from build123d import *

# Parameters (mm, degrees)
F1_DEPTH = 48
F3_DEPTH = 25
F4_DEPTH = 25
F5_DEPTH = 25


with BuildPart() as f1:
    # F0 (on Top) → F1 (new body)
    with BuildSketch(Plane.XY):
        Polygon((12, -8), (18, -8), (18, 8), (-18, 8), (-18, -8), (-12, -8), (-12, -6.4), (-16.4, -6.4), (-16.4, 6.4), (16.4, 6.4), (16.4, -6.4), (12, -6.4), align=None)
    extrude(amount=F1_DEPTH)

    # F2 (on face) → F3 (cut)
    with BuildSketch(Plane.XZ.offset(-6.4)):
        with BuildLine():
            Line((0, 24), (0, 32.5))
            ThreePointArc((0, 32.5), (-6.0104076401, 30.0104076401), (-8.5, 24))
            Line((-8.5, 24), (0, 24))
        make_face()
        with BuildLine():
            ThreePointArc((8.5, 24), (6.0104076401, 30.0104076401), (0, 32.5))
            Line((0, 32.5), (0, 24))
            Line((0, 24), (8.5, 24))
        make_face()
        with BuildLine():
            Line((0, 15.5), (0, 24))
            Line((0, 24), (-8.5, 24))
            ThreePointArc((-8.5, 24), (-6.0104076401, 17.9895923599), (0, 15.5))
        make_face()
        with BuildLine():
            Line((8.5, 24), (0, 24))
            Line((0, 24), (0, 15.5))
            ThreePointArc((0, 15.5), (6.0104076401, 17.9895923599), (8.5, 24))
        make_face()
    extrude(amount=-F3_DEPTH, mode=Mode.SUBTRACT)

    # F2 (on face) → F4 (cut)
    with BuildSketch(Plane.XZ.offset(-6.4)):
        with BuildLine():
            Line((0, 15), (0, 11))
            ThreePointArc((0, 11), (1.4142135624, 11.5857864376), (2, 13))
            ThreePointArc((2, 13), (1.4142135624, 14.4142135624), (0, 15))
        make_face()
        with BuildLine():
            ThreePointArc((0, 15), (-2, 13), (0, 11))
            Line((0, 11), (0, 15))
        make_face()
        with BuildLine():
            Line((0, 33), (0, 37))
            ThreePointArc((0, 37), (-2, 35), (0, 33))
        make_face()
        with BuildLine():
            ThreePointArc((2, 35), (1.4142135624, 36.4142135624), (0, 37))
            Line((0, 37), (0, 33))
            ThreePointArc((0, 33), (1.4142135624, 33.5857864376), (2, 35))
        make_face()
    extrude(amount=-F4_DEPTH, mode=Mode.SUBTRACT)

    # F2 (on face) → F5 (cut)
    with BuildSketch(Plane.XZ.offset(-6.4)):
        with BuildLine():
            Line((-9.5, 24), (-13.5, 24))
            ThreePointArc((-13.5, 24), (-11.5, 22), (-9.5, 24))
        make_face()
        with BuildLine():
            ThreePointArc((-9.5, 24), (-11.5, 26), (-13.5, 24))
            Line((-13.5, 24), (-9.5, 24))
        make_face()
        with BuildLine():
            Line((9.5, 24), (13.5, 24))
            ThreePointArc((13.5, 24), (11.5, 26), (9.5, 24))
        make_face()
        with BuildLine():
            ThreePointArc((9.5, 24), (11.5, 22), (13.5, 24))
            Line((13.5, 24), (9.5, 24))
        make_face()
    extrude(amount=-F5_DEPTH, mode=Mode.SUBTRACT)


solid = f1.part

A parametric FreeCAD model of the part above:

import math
import FreeCAD as App
import Part
import Sketcher

doc = App.newDocument("Part")
params = doc.addObject("Spreadsheet::Sheet", "Params")
for row, (alias, value) in enumerate([
    ("sketch1_width", "6 mm"),
    ("sketch1_width2", "36 mm"),
    ("sketch1_height", "16 mm"),
    ("sketch1_width3", "4.4 mm"),
    ("sketch1_height2", "1.6 mm"),
    ("pad1_length", "48 mm"),
    ("sketch2_radius", "8.5 mm"),
    ("pocket1_length", "25 mm"),
    ("sketch3_radius", "2 mm"),
    ("pocket2_length", "25 mm"),
    ("sketch4_diameter", "4 mm"),
    ("pocket3_length", "25 mm"),
], start=1):
    params.set(f"A{row}", alias)
    params.set(f"B{row}", "=" + value)
    params.setAlias(f"B{row}", alias)

body = doc.addObject("PartDesign::Body", "Body")

# Sketch on XY plane
sketch1 = body.newObject("Sketcher::SketchObject", "Sketch")
sketch1.AttachmentSupport = (doc.getObject("XY_Plane"), [""])
sketch1.MapMode = "FlatFace"
sketch1.addGeometry(Part.LineSegment(App.Vector(12, -8, 0), App.Vector(18, -8, 0)), False)
sketch1.addGeometry(Part.LineSegment(App.Vector(18, -8, 0), App.Vector(18, 8, 0)), False)
sketch1.addGeometry(Part.LineSegment(App.Vector(18, 8, 0), App.Vector(-18, 8, 0)), False)
sketch1.addGeometry(Part.LineSegment(App.Vector(-18, 8, 0), App.Vector(-18, -8, 0)), False)
sketch1.addGeometry(Part.LineSegment(App.Vector(-18, -8, 0), App.Vector(-12, -8, 0)), False)
sketch1.addGeometry(Part.LineSegment(App.Vector(-12, -8, 0), App.Vector(-12, -6.4, 0)), False)
sketch1.addGeometry(Part.LineSegment(App.Vector(-12, -6.4, 0), App.Vector(-16.4, -6.4, 0)), False)
sketch1.addGeometry(Part.LineSegment(App.Vector(-16.4, -6.4, 0), App.Vector(-16.4, 6.4, 0)), False)
sketch1.addGeometry(Part.LineSegment(App.Vector(-16.4, 6.4, 0), App.Vector(16.4, 6.4, 0)), False)
sketch1.addGeometry(Part.LineSegment(App.Vector(16.4, 6.4, 0), App.Vector(16.4, -6.4, 0)), False)
sketch1.addGeometry(Part.LineSegment(App.Vector(16.4, -6.4, 0), App.Vector(12, -6.4, 0)), False)
sketch1.addGeometry(Part.LineSegment(App.Vector(12, -6.4, 0), App.Vector(12, -8, 0)), False)
sketch1.addConstraint(Sketcher.Constraint("Coincident", 0, 2, 1, 1))
sketch1.addConstraint(Sketcher.Constraint("Coincident", 1, 2, 2, 1))
sketch1.addConstraint(Sketcher.Constraint("Coincident", 2, 2, 3, 1))
sketch1.addConstraint(Sketcher.Constraint("Coincident", 3, 2, 4, 1))
sketch1.addConstraint(Sketcher.Constraint("Coincident", 4, 2, 5, 1))
sketch1.addConstraint(Sketcher.Constraint("Coincident", 5, 2, 6, 1))
sketch1.addConstraint(Sketcher.Constraint("Coincident", 6, 2, 7, 1))
sketch1.addConstraint(Sketcher.Constraint("Coincident", 7, 2, 8, 1))
sketch1.addConstraint(Sketcher.Constraint("Coincident", 8, 2, 9, 1))
sketch1.addConstraint(Sketcher.Constraint("Coincident", 9, 2, 10, 1))
sketch1.addConstraint(Sketcher.Constraint("Coincident", 10, 2, 11, 1))
sketch1.addConstraint(Sketcher.Constraint("Coincident", 11, 2, 0, 1))
sketch1.addConstraint(Sketcher.Constraint("Horizontal", 0))
sketch1.addConstraint(Sketcher.Constraint("Vertical", 1))
sketch1.addConstraint(Sketcher.Constraint("Horizontal", 2))
sketch1.addConstraint(Sketcher.Constraint("Vertical", 3))
sketch1.addConstraint(Sketcher.Constraint("Horizontal", 4))
sketch1.addConstraint(Sketcher.Constraint("Vertical", 5))
sketch1.addConstraint(Sketcher.Constraint("Horizontal", 6))
sketch1.addConstraint(Sketcher.Constraint("Vertical", 7))
sketch1.addConstraint(Sketcher.Constraint("Horizontal", 8))
sketch1.addConstraint(Sketcher.Constraint("Vertical", 9))
sketch1.addConstraint(Sketcher.Constraint("Horizontal", 10))
sketch1.addConstraint(Sketcher.Constraint("Vertical", 11))
sketch1.addConstraint(Sketcher.Constraint("Symmetric", 0, 2, 2, 2, -1, 1))
sketch1.addConstraint(Sketcher.Constraint("Symmetric", 6, 2, 8, 2, -1, 1))
sketch1.addConstraint(Sketcher.Constraint("Symmetric", 5, 2, 10, 2, -2))
sketch1.addConstraint(Sketcher.Constraint("Horizontal", 0, 2, 3, 2))
sketch1.addConstraint(Sketcher.Constraint("DistanceX", 0, 1, 0, 2, 6.0))
sketch1.addConstraint(Sketcher.Constraint("DistanceX", 2, 2, 2, 1, 36.0))
sketch1.addConstraint(Sketcher.Constraint("DistanceY", 1, 1, 1, 2, 16.0))
sketch1.addConstraint(Sketcher.Constraint("DistanceX", 6, 2, 6, 1, 4.4))
sketch1.addConstraint(Sketcher.Constraint("DistanceY", 5, 1, 5, 2, 1.6))
sketch1.setExpression("Constraints[28]", "Params.sketch1_width")
sketch1.setExpression("Constraints[29]", "Params.sketch1_width2")
sketch1.setExpression("Constraints[30]", "Params.sketch1_height")
sketch1.setExpression("Constraints[31]", "Params.sketch1_width3")
sketch1.setExpression("Constraints[32]", "Params.sketch1_height2")
pad1 = body.newObject("PartDesign::Pad", "Pad")
pad1.Profile = sketch1
pad1.setExpression("Length", "Params.pad1_length")

# Sketch on XZ plane
sketch2 = body.newObject("Sketcher::SketchObject", "Sketch001")
sketch2.AttachmentSupport = (doc.getObject("XZ_Plane"), [""])
sketch2.MapMode = "FlatFace"
sketch2.AttachmentOffset = App.Placement(App.Vector(0, 0, -6.4), App.Rotation())
sketch2.addGeometry(Part.ArcOfCircle(Part.Circle(App.Vector(0, 24, 0), App.Vector(0, 0, 1), 8), math.radians(90), math.radians(180)), False)
sketch2.addGeometry(Part.ArcOfCircle(Part.Circle(App.Vector(0, 24, 0), App.Vector(0, 0, 1), 8), math.radians(180), math.radians(270)), False)
sketch2.addGeometry(Part.ArcOfCircle(Part.Circle(App.Vector(0, 24, 0), App.Vector(0, 0, 1), 8), math.radians(-90), math.radians(0)), False)
sketch2.addGeometry(Part.ArcOfCircle(Part.Circle(App.Vector(0, 24, 0), App.Vector(0, 0, 1), 8), math.radians(0), math.radians(90)), False)
sketch2.addConstraint(Sketcher.Constraint("Tangent", 0, 2, 1, 1))
sketch2.addConstraint(Sketcher.Constraint("Tangent", 1, 2, 2, 1))
sketch2.addConstraint(Sketcher.Constraint("Tangent", 2, 2, 3, 1))
sketch2.addConstraint(Sketcher.Constraint("Tangent", 3, 2, 0, 1))
sketch2.addConstraint(Sketcher.Constraint("Equal", 0, 1))
sketch2.addConstraint(Sketcher.Constraint("Symmetric", 0, 2, 2, 2, -2))
sketch2.addConstraint(Sketcher.Constraint("PointOnObject", 1, 2, -2))
sketch2.addConstraint(Sketcher.Constraint("PointOnObject", 3, 2, -2))
sketch2.addConstraint(Sketcher.Constraint("Horizontal", 3, 3, 0, 2))
sketch2.addConstraint(Sketcher.Constraint("Radius", 0, 8.5))
sketch2.addConstraint(Sketcher.Constraint("DistanceY", -1, 1, 0, 3, 24.0))
sketch2.setExpression("Constraints[9]", "Params.sketch2_radius")
pocket1 = body.newObject("PartDesign::Pocket", "Pocket")
pocket1.Profile = sketch2
pocket1.setExpression("Length", "Params.pocket1_length")

# Sketch on XZ plane
sketch3 = body.newObject("Sketcher::SketchObject", "Sketch002")
sketch3.AttachmentSupport = (doc.getObject("XZ_Plane"), [""])
sketch3.MapMode = "FlatFace"
sketch3.AttachmentOffset = App.Placement(App.Vector(0, 0, -6.4), App.Rotation())
sketch3.addGeometry(Part.ArcOfCircle(Part.Circle(App.Vector(0, 13, 0), App.Vector(0, 0, 1), 2), math.radians(-90), math.radians(0)), False)
sketch3.addGeometry(Part.ArcOfCircle(Part.Circle(App.Vector(0, 13, 0), App.Vector(0, 0, 1), 2), math.radians(0), math.radians(90)), False)
sketch3.addGeometry(Part.ArcOfCircle(Part.Circle(App.Vector(0, 13, 0), App.Vector(0, 0, 1), 2), math.radians(90), math.radians(270)), False)
sketch3.addGeometry(Part.ArcOfCircle(Part.Circle(App.Vector(0, 35, 0), App.Vector(0, 0, 1), 2), math.radians(90), math.radians(270)), False)
sketch3.addGeometry(Part.ArcOfCircle(Part.Circle(App.Vector(0, 35, 0), App.Vector(0, 0, 1), 2), math.radians(-90), math.radians(0)), False)
sketch3.addGeometry(Part.ArcOfCircle(Part.Circle(App.Vector(0, 35, 0), App.Vector(0, 0, 1), 2), math.radians(0), math.radians(90)), False)
sketch3.addConstraint(Sketcher.Constraint("Tangent", 0, 2, 1, 1))
sketch3.addConstraint(Sketcher.Constraint("Tangent", 1, 2, 2, 1))
sketch3.addConstraint(Sketcher.Constraint("Tangent", 2, 2, 0, 1))
sketch3.addConstraint(Sketcher.Constraint("Tangent", 3, 2, 4, 1))
sketch3.addConstraint(Sketcher.Constraint("Tangent", 4, 2, 5, 1))
sketch3.addConstraint(Sketcher.Constraint("Tangent", 5, 2, 3, 1))
sketch3.addConstraint(Sketcher.Constraint("Equal", 2, 3))
sketch3.addConstraint(Sketcher.Constraint("PointOnObject", 0, 3, -2))
sketch3.addConstraint(Sketcher.Constraint("PointOnObject", 3, 3, -2))
sketch3.addConstraint(Sketcher.Constraint("PointOnObject", 1, 2, -2))
sketch3.addConstraint(Sketcher.Constraint("PointOnObject", 2, 2, -2))
sketch3.addConstraint(Sketcher.Constraint("PointOnObject", 3, 2, -2))
sketch3.addConstraint(Sketcher.Constraint("PointOnObject", 5, 2, -2))
sketch3.addConstraint(Sketcher.Constraint("Horizontal", 2, 3, 0, 2))
sketch3.addConstraint(Sketcher.Constraint("Horizontal", 5, 3, 4, 2))
sketch3.addConstraint(Sketcher.Constraint("Radius", 0, 2.0))
sketch3.addConstraint(Sketcher.Constraint("DistanceY", -1, 1, 0, 3, 13.0))
sketch3.addConstraint(Sketcher.Constraint("DistanceY", -1, 1, 3, 3, 35.0))
sketch3.setExpression("Constraints[15]", "Params.sketch3_radius")
pocket2 = body.newObject("PartDesign::Pocket", "Pocket001")
pocket2.Profile = sketch3
pocket2.setExpression("Length", "Params.pocket2_length")

# Sketch on XZ plane
sketch4 = body.newObject("Sketcher::SketchObject", "Sketch003")
sketch4.AttachmentSupport = (doc.getObject("XZ_Plane"), [""])
sketch4.MapMode = "FlatFace"
sketch4.AttachmentOffset = App.Placement(App.Vector(0, 0, -6.4), App.Rotation())
sketch4.addGeometry(Part.Circle(App.Vector(-11.5, 24, 0), App.Vector(0, 0, 1), 2), False)
sketch4.addGeometry(Part.Circle(App.Vector(11.5, 24, 0), App.Vector(0, 0, 1), 2), False)
sketch4.addConstraint(Sketcher.Constraint("Equal", 0, 1))
sketch4.addConstraint(Sketcher.Constraint("Symmetric", 0, 3, 1, 3, -2))
sketch4.addConstraint(Sketcher.Constraint("Diameter", 0, 4.0))
sketch4.addConstraint(Sketcher.Constraint("DistanceY", -1, 1, 0, 3, 24.0))
sketch4.addConstraint(Sketcher.Constraint("DistanceX", 0, 3, 1, 3, 23.0))
sketch4.setExpression("Constraints[2]", "Params.sketch4_diameter")
pocket3 = body.newObject("PartDesign::Pocket", "Pocket002")
pocket3.Profile = sketch4
pocket3.setExpression("Length", "Params.pocket3_length")

doc.recompute()
